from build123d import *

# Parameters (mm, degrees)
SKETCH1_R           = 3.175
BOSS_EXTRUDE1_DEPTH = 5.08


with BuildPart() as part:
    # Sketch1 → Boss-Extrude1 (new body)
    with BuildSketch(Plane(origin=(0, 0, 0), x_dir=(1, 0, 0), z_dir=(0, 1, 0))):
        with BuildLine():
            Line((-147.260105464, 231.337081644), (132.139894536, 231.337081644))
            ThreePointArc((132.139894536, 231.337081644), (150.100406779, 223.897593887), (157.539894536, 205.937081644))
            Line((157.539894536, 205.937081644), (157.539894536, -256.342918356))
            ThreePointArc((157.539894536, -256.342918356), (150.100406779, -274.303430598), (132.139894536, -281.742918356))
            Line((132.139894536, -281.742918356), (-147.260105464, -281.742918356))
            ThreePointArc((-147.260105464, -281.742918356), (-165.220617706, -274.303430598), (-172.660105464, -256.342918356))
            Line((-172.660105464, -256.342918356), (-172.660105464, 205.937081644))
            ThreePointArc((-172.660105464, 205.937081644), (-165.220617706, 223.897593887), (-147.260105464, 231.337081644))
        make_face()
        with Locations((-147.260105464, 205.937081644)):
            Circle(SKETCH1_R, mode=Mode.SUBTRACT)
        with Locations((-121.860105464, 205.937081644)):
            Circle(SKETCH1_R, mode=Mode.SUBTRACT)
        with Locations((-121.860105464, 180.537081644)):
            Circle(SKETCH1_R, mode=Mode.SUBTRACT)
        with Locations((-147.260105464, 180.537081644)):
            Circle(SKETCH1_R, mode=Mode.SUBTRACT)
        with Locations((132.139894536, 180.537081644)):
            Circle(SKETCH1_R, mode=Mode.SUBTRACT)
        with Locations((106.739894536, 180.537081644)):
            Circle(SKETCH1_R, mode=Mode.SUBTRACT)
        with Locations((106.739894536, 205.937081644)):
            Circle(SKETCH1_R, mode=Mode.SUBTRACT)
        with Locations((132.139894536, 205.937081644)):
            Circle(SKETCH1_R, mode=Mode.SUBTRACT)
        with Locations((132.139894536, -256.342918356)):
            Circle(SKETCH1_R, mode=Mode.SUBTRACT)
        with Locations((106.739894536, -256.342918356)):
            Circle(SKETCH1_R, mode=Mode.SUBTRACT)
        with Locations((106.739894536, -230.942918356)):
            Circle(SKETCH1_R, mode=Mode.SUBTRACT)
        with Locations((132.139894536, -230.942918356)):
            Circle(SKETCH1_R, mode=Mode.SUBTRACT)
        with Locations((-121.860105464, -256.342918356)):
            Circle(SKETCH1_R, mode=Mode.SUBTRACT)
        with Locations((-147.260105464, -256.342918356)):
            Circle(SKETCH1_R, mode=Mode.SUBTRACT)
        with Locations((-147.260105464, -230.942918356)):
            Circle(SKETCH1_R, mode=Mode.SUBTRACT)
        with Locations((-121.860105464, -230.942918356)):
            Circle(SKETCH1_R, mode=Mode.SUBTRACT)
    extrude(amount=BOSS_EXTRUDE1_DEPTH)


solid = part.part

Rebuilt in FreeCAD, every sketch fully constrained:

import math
import FreeCAD as App
import Part
import Sketcher

V = App.Vector
Q = App.Units.Quantity

doc = App.newDocument("Part")
params = doc.addObject("Spreadsheet::Sheet", "Params")
for row, (alias, value) in enumerate([
    ("sketch1_radius", "1 in"),
    ("sketch1_diameter", "0.25 in"),
    ("sketch1_width", "11 in"),
    ("sketch1_height", "18.2 in"),
    ("pad1_length", "0.2 in"),
], start=1):
    params.set(f"A{row}", alias)
    params.set(f"B{row}", "=" + value)
    params.setAlias(f"B{row}", alias)

body = doc.addObject("PartDesign::Body", "Body")

sketch1 = body.newObject("Sketcher::SketchObject", "Sketch")
sketch1.AttachmentSupport = (doc.getObject("XZ_Plane"), [""])
sketch1.MapMode = "FlatFace"
sketch1.addGeometry(Part.LineSegment(V(132.139895, -231.337082, 0), V(-147.260105, -231.337082, 0)), False)
sketch1.addGeometry(Part.ArcOfCircle(Part.Circle(V(-147.260105, -205.937082, 0), V(0, 0, 1), 25.4), math.radians(180), math.radians(270)), False)
sketch1.addGeometry(Part.LineSegment(V(-172.660105, -205.937082, 0), V(-172.660105, 256.342918, 0)), False)
sketch1.addGeometry(Part.ArcOfCircle(Part.Circle(V(-147.260105, 256.342918, 0), V(0, 0, 1), 25.4), math.radians(90), math.radians(180)), False)
sketch1.addGeometry(Part.LineSegment(V(-147.260105, 281.742918, 0), V(132.139895, 281.742918, 0)), False)
sketch1.addGeometry(Part.ArcOfCircle(Part.Circle(V(132.139895, 256.342918, 0), V(0, 0, 1), 25.4), math.radians(0), math.radians(90)), False)
sketch1.addGeometry(Part.LineSegment(V(157.539895, 256.342918, 0), V(157.539895, -205.937082, 0)), False)
sketch1.addGeometry(Part.ArcOfCircle(Part.Circle(V(132.139895, -205.937082, 0), V(0, 0, 1), 25.4), math.radians(-90), math.radians(0)), False)
sketch1.addGeometry(Part.Circle(V(132.139895, 256.342918, 0), V(0, 0, 1), 3.175), False)
sketch1.addGeometry(Part.Circle(V(132.139895, 230.942918, 0), V(0, 0, 1), 3.175), False)
sketch1.addGeometry(Part.Circle(V(106.739895, 256.342918, 0), V(0, 0, 1), 3.175), False)
sketch1.addGeometry(Part.Circle(V(106.739895, 230.942918, 0), V(0, 0, 1), 3.175), False)
sketch1.addGeometry(Part.Circle(V(-121.860105, 256.342918, 0), V(0, 0, 1), 3.175), False)
sketch1.addGeometry(Part.Circle(V(-121.860105, 230.942918, 0), V(0, 0, 1), 3.175), False)
sketch1.addGeometry(Part.Circle(V(-147.260105, 256.342918, 0), V(0, 0, 1), 3.175), False)
sketch1.addGeometry(Part.Circle(V(-147.260105, 230.942918, 0), V(0, 0, 1), 3.175), False)
sketch1.addGeometry(Part.Circle(V(132.139895, -180.537082, 0), V(0, 0, 1), 3.175), False)
sketch1.addGeometry(Part.Circle(V(132.139895, -205.937082, 0), V(0, 0, 1), 3.175), False)
sketch1.addGeometry(Part.Circle(V(106.739895, -180.537082, 0), V(0, 0, 1), 3.175), False)
sketch1.addGeometry(Part.Circle(V(106.739895, -205.937082, 0), V(0, 0, 1), 3.175), False)
sketch1.addGeometry(Part.Circle(V(-121.860105, -180.537082, 0), V(0, 0, 1), 3.175), False)
sketch1.addGeometry(Part.Circle(V(-121.860105, -205.937082, 0), V(0, 0, 1), 3.175), False)
sketch1.addGeometry(Part.Circle(V(-147.260105, -180.537082, 0), V(0, 0, 1), 3.175), False)
sketch1.addGeometry(Part.Circle(V(-147.260105, -205.937082, 0), V(0, 0, 1), 3.175), False)
sketch1.addConstraint(Sketcher.Constraint("Tangent", 0, 2, 1, 2))
sketch1.addConstraint(Sketcher.Constraint("Tangent", 1, 1, 2, 1))
sketch1.addConstraint(Sketcher.Constraint("Tangent", 2, 2, 3, 2))
sketch1.addConstraint(Sketcher.Constraint("Tangent", 3, 1, 4, 1))
sketch1.addConstraint(Sketcher.Constraint("Tangent", 4, 2, 5, 2))
sketch1.addConstraint(Sketcher.Constraint("Tangent", 5, 1, 6, 1))
sketch1.addConstraint(Sketcher.Constraint("Tangent", 6, 2, 7, 2))
sketch1.addConstraint(Sketcher.Constraint("Tangent", 7, 1, 0, 1))
sketch1.addConstraint(Sketcher.Constraint("Horizontal", 0))
sketch1.addConstraint(Sketcher.Constraint("Vertical", 2))
sketch1.addConstraint(Sketcher.Constraint("Horizontal", 4))
sketch1.addConstraint(Sketcher.Constraint("Vertical", 6))
sketch1.addConstraint(Sketcher.Constraint("Coincident", 8, 3, 5, 3))
sketch1.addConstraint(Sketcher.Constraint("Coincident", 14, 3, 3, 3))
sketch1.addConstraint(Sketcher.Constraint("Coincident", 17, 3, 7, 3))
sketch1.addConstraint(Sketcher.Constraint("Coincident", 23, 3, 1, 3))
sketch1.addConstraint(Sketcher.Constraint("Equal", 1, 3))
sketch1.addConstraint(Sketcher.Constraint("Equal", 3, 5))
sketch1.addConstraint(Sketcher.Constraint("Equal", 5, 7))
sketch1.addConstraint(Sketcher.Constraint("Equal", 8, 9))
sketch1.addConstraint(Sketcher.Constraint("Equal", 9, 10))
sketch1.addConstraint(Sketcher.Constraint("Equal", 10, 11))
sketch1.addConstraint(Sketcher.Constraint("Equal", 11, 12))
sketch1.addConstraint(Sketcher.Constraint("Equal", 12, 13))
sketch1.addConstraint(Sketcher.Constraint("Equal", 13, 14))
sketch1.addConstraint(Sketcher.Constraint("Equal", 14, 15))
sketch1.addConstraint(Sketcher.Constraint("Equal", 15, 16))
sketch1.addConstraint(Sketcher.Constraint("Equal", 16, 17))
sketch1.addConstraint(Sketcher.Constraint("Equal", 17, 18))
sketch1.addConstraint(Sketcher.Constraint("Equal", 18, 19))
sketch1.addConstraint(Sketcher.Constraint("Equal", 19, 20))
sketch1.addConstraint(Sketcher.Constraint("Equal", 20, 21))
sketch1.addConstraint(Sketcher.Constraint("Equal", 21, 22))
sketch1.addConstraint(Sketcher.Constraint("Equal", 22, 23))
sketch1.addConstraint(Sketcher.Constraint("Horizontal", 8, 3, 10, 3))
sketch1.addConstraint(Sketcher.Constraint("Horizontal", 9, 3, 11, 3))
sketch1.addConstraint(Sketcher.Constraint("Horizontal", 10, 3, 12, 3))
sketch1.addConstraint(Sketcher.Constraint("Horizontal", 11, 3, 13, 3))
sketch1.addConstraint(Sketcher.Constraint("Horizontal", 13, 3, 15, 3))
sketch1.addConstraint(Sketcher.Constraint("Horizontal", 16, 3, 18, 3))
sketch1.addConstraint(Sketcher.Constraint("Horizontal", 17, 3, 19, 3))
sketch1.addConstraint(Sketcher.Constraint("Horizontal", 18, 3, 20, 3))
sketch1.addConstraint(Sketcher.Constraint("Horizontal", 19, 3, 21, 3))
sketch1.addConstraint(Sketcher.Constraint("Horizontal", 20, 3, 22, 3))
sketch1.addConstraint(Sketcher.Constraint("Vertical", 8, 3, 9, 3))
sketch1.addConstraint(Sketcher.Constraint("Vertical", 10, 3, 11, 3))
sketch1.addConstraint(Sketcher.Constraint("Vertical", 12, 3, 13, 3))
sketch1.addConstraint(Sketcher.Constraint("Vertical", 14, 3, 15, 3))
sketch1.addConstraint(Sketcher.Constraint("Vertical", 9, 3, 16, 3))
sketch1.addConstraint(Sketcher.Constraint("Vertical", 11, 3, 18, 3))
sketch1.addConstraint(Sketcher.Constraint("Vertical", 18, 3, 19, 3))
sketch1.addConstraint(Sketcher.Constraint("Vertical", 13, 3, 20, 3))
sketch1.addConstraint(Sketcher.Constraint("Vertical", 20, 3, 21, 3))
sketch1.addConstraint(Sketcher.Constraint("Vertical", 15, 3, 22, 3))
sketch1.addConstraint(Sketcher.Constraint("Radius", 1, Q("1 in")))
sketch1.addConstraint(Sketcher.Constraint("Diameter", 8, Q("0.25 in")))
sketch1.addConstraint(Sketcher.Constraint("DistanceX", 0, 2, 0, 1, Q("11 in")))
sketch1.addConstraint(Sketcher.Constraint("DistanceY", 2, 1, 2, 2, Q("18.2 in")))
sketch1.addConstraint(Sketcher.Constraint("DistanceY", 9, 3, 8, 3, Q("1 in")))
sketch1.addConstraint(Sketcher.Constraint("DistanceX", 10, 3, 8, 3, Q("1 in")))
sketch1.addConstraint(Sketcher.Constraint("DistanceX", 3, 3, 12, 3, Q("1 in")))
sketch1.addConstraint(Sketcher.Constraint("DistanceY", 7, 3, 16, 3, Q("1 in")))
sketch1.addConstraint(Sketcher.Constraint("DistanceY", 1, 3, -1, 1, Q("205.937082 mm")))
sketch1.addConstraint(Sketcher.Constraint("DistanceX", 1, 3, -1, 1, Q("147.260105 mm")))
sketch1.setExpression("Constraints[54]", "Params.sketch1_radius")
sketch1.setExpression("Constraints[55]", "Params.sketch1_diameter")
sketch1.setExpression("Constraints[56]", "Params.sketch1_width")
sketch1.setExpression("Constraints[57]", "Params.sketch1_height")
pad1 = body.newObject("PartDesign::Pad", "Pad")
pad1.Profile = sketch1
pad1.setExpression("Length", "Params.pad1_length")
pad1.Reversed = True

doc.recompute()
